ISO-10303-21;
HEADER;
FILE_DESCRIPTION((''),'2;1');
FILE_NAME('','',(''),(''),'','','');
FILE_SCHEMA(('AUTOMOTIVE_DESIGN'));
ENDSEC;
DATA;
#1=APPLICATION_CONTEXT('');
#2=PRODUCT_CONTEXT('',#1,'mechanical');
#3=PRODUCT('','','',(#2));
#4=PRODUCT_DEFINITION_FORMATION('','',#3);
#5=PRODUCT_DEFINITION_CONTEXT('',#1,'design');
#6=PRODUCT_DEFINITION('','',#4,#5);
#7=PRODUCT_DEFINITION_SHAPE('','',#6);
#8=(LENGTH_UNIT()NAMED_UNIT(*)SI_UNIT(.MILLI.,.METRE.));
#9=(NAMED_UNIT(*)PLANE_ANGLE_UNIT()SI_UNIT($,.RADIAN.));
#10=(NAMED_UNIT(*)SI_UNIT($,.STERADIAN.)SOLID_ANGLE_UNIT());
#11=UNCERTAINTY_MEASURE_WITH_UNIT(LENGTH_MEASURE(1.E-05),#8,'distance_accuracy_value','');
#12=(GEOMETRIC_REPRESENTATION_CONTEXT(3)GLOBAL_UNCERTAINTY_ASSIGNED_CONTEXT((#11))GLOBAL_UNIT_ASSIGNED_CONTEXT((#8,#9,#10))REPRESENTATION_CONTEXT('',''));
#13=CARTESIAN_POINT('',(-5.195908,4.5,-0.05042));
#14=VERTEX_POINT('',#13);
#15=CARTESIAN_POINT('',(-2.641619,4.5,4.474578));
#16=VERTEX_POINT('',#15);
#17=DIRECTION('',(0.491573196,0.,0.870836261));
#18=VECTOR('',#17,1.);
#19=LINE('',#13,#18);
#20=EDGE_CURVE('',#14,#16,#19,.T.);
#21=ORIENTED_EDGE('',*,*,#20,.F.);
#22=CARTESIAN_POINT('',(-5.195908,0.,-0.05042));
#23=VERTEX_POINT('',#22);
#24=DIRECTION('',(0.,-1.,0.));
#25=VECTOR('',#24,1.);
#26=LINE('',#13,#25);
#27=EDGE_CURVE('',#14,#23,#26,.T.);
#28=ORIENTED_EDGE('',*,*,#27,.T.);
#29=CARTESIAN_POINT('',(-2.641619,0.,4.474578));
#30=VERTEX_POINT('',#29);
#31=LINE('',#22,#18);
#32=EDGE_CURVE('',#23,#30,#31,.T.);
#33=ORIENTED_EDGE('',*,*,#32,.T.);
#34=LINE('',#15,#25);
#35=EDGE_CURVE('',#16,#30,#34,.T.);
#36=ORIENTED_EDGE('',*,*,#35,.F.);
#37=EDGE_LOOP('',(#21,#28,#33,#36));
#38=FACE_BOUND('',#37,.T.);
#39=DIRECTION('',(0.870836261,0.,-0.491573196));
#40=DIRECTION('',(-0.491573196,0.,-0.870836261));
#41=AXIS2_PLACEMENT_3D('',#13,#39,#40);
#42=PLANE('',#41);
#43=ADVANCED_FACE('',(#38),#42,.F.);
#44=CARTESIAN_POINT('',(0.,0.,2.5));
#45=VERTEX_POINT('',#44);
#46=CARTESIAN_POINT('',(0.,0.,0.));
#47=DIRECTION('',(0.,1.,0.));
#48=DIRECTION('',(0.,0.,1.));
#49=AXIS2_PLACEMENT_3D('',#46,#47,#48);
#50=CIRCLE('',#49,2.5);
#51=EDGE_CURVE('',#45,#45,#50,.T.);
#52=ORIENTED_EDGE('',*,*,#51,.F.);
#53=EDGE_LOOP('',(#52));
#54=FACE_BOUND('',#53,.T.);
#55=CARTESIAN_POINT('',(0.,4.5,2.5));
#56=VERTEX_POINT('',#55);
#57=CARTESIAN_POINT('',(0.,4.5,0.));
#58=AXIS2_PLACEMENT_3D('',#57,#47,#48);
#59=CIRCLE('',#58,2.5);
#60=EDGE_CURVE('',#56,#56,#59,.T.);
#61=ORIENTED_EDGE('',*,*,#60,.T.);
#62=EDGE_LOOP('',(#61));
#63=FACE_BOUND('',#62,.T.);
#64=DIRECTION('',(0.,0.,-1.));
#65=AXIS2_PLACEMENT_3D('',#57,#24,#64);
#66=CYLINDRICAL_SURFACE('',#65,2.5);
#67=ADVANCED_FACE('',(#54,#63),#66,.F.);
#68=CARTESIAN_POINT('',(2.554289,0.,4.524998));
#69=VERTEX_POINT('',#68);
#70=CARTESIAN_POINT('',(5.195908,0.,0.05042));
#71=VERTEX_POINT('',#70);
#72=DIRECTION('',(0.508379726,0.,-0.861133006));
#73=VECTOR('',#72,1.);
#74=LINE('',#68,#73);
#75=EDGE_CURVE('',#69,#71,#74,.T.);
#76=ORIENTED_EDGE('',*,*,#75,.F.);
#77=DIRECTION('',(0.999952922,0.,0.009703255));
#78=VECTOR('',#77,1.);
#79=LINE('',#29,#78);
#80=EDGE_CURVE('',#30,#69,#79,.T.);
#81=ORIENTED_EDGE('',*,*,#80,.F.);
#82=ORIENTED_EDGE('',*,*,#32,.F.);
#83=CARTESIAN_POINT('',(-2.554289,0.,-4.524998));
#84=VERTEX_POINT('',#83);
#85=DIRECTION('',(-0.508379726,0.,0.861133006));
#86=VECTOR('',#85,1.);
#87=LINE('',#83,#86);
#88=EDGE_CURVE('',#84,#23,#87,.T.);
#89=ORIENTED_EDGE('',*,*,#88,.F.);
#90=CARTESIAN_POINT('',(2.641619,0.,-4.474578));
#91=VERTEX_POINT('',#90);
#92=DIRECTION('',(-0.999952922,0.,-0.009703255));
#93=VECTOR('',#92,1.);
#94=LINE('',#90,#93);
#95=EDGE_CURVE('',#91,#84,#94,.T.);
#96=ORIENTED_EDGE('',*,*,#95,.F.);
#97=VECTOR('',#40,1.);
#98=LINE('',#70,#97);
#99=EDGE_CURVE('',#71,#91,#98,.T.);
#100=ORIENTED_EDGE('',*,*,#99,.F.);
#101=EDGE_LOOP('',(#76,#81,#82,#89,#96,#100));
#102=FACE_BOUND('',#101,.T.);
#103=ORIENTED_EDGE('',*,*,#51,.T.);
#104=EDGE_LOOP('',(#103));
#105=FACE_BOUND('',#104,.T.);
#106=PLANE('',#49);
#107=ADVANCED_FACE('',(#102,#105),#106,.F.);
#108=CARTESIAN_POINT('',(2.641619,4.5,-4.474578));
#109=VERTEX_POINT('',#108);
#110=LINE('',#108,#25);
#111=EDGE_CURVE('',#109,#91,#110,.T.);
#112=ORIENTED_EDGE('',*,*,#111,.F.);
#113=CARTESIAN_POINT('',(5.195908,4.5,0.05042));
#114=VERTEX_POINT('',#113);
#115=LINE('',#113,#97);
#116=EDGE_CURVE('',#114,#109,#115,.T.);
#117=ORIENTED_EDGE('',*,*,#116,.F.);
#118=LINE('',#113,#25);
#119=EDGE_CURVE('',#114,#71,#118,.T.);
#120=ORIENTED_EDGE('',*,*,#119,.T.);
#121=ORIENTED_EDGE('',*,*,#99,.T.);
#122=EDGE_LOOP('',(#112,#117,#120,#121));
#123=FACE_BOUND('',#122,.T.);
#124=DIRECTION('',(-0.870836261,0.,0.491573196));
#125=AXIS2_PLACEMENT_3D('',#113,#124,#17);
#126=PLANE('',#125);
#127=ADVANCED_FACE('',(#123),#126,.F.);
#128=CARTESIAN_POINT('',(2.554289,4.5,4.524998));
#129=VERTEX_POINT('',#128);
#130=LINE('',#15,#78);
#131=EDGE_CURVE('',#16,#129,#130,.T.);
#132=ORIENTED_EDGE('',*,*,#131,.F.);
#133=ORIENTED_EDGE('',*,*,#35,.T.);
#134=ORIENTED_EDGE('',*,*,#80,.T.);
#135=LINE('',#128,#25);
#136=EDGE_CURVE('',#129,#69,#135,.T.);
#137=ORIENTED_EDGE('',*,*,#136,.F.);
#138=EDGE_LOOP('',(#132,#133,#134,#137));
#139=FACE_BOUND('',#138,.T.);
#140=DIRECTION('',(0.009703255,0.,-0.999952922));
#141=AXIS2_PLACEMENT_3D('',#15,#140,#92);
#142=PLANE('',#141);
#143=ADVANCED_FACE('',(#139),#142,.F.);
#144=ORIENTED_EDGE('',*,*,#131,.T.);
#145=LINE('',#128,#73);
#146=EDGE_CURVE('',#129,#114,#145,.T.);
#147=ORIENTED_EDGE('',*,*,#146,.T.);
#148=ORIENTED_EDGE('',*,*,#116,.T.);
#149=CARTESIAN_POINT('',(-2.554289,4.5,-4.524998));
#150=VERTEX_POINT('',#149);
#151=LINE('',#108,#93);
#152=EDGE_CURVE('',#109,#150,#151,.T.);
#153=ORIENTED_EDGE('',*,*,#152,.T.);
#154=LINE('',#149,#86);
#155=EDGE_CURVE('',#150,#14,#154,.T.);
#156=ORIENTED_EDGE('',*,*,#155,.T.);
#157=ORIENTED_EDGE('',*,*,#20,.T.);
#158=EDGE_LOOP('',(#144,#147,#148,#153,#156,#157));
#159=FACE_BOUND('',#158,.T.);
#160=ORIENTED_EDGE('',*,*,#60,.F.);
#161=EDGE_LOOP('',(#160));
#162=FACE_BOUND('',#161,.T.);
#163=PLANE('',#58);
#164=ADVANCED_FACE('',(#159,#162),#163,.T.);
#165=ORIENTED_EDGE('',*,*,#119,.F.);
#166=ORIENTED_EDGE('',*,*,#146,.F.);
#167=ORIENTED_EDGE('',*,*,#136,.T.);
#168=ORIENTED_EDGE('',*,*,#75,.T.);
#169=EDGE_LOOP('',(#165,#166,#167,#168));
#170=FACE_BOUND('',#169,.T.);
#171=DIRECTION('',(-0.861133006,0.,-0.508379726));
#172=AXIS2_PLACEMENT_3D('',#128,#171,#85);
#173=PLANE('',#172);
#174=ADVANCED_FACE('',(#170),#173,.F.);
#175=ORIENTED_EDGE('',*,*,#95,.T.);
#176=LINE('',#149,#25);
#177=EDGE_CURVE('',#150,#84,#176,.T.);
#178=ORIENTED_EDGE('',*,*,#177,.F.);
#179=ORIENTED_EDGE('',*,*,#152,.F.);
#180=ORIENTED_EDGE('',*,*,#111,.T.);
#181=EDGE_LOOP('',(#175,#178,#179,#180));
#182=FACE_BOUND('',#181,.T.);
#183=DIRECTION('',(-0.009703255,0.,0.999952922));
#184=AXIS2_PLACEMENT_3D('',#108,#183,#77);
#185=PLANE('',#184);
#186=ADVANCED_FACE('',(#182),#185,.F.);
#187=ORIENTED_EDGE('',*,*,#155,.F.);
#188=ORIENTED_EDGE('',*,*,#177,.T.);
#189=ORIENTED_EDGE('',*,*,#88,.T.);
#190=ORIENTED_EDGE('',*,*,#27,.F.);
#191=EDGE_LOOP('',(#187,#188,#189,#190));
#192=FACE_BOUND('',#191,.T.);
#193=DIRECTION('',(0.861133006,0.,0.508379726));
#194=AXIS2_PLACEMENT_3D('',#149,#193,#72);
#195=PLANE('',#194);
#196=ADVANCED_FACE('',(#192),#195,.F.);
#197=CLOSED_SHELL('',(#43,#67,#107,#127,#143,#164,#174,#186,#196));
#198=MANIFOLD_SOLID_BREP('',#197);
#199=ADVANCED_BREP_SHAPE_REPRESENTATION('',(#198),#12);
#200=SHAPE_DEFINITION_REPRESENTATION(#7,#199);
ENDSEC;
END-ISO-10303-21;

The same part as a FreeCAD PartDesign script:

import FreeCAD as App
import Part
import Sketcher


def add_polygon(sketch, points):
    """Adds a closed chain of lines whose ends are joined by coincident constraints."""
    first, n = sketch.GeometryCount, len(points)
    for a, b in zip(points, points[1:] + points[:1]):
        sketch.addGeometry(Part.LineSegment(App.Vector(*a, 0), App.Vector(*b, 0)), False)
    for i in range(n):
        sketch.addConstraint(Sketcher.Constraint("Coincident", first + i, 2, first + (i + 1) % n, 1))

doc = App.newDocument("Part")
params = doc.addObject("Spreadsheet::Sheet", "Params")
for row, (alias, value) in enumerate([
    ("sketch1_diameter", "5 mm"),
    ("pad1_length", "4.5 mm"),
], start=1):
    params.set(f"A{row}", alias)
    params.set(f"B{row}", "=" + value)
    params.setAlias(f"B{row}", alias)

body = doc.addObject("PartDesign::Body", "Body")

# Sketch on XZ plane
sketch1 = body.newObject("Sketcher::SketchObject", "Sketch")
sketch1.AttachmentSupport = (doc.getObject("XZ_Plane"), [""])
sketch1.MapMode = "FlatFace"
add_polygon(sketch1, [(2.6, -4.5), (-2.6, -4.5), (-5.2, -0.1), (-2.6, 4.5), (2.6, 4.5), (5.2, 0.1)])  # lines 0-5
sketch1.addGeometry(Part.Circle(App.Vector(0, 0, 0), App.Vector(0, 0, 1), 2.5), False)  # 6
sketch1.addConstraint(Sketcher.Constraint("Coincident", 6, 3, -1, 1))
sketch1.addConstraint(Sketcher.Constraint("Symmetric", 0, 2, 3, 2, -1, 1))
sketch1.addConstraint(Sketcher.Constraint("Symmetric", 1, 2, 4, 2, -1, 1))
sketch1.addConstraint(Sketcher.Constraint("Symmetric", 2, 2, 5, 2, -1, 1))
sketch1.addConstraint(Sketcher.Constraint("Equal", 0, 1))
sketch1.addConstraint(Sketcher.Constraint("Equal", 1, 2))
sketch1.addConstraint(Sketcher.Constraint("Diameter", 6, 5.0))
sketch1.addConstraint(Sketcher.Constraint("DistanceX", 0, 2, -1, 1, 2.554289))
sketch1.addConstraint(Sketcher.Constraint("DistanceY", 1, 2, -1, 1, 0.05042))
sketch1.addConstraint(Sketcher.Constraint("DistanceX", 2, 2, -1, 1, 2.641619))
sketch1.addConstraint(Sketcher.Constraint("DistanceY", -1, 1, 2, 2, 4.474578))
sketch1.setExpression("Constraints[12]", "Params.sketch1_diameter")
pad1 = body.newObject("PartDesign::Pad", "Pad")
pad1.Profile = sketch1
pad1.setExpression("Length", "Params.pad1_length")
pad1.Reversed = True

doc.recompute()
